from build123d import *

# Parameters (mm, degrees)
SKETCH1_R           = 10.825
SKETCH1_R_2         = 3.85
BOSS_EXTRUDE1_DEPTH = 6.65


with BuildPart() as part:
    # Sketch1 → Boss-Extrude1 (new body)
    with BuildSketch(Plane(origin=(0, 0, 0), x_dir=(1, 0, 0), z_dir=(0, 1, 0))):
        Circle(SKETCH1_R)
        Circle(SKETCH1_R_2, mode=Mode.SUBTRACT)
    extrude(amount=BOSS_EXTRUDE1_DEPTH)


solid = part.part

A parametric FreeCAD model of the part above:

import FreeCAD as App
import Part
import Sketcher
Q = App.Units.Quantity

doc = App.newDocument("Part")
body = doc.addObject("PartDesign::Body", "Body")

# Sketch on XZ plane
sketch1 = body.newObject("Sketcher::SketchObject", "Sketch")
sketch1.AttachmentSupport = (doc.getObject("XZ_Plane"), [""])
sketch1.MapMode = "FlatFace"
sketch1.addGeometry(Part.Circle(App.Vector(0, 0, 0), App.Vector(0, 0, 1), 10.825), False)
sketch1.addGeometry(Part.Circle(App.Vector(0, 0, 0), App.Vector(0, 0, 1), 3.85), False)
sketch1.addConstraint(Sketcher.Constraint("Coincident", 0, 3, -1, 1))
sketch1.addConstraint(Sketcher.Constraint("Coincident", 1, 3, -1, 1))
sketch1.addConstraint(Sketcher.Constraint("Diameter", 1, Q("7.7 mm")))
sketch1.addConstraint(Sketcher.Constraint("Diameter", 0, Q("21.65 mm")))
pad1 = body.newObject("PartDesign::Pad", "Pad")
pad1.Profile = sketch1
pad1.Length = 6.65
pad1.Reversed = True

doc.recompute()
